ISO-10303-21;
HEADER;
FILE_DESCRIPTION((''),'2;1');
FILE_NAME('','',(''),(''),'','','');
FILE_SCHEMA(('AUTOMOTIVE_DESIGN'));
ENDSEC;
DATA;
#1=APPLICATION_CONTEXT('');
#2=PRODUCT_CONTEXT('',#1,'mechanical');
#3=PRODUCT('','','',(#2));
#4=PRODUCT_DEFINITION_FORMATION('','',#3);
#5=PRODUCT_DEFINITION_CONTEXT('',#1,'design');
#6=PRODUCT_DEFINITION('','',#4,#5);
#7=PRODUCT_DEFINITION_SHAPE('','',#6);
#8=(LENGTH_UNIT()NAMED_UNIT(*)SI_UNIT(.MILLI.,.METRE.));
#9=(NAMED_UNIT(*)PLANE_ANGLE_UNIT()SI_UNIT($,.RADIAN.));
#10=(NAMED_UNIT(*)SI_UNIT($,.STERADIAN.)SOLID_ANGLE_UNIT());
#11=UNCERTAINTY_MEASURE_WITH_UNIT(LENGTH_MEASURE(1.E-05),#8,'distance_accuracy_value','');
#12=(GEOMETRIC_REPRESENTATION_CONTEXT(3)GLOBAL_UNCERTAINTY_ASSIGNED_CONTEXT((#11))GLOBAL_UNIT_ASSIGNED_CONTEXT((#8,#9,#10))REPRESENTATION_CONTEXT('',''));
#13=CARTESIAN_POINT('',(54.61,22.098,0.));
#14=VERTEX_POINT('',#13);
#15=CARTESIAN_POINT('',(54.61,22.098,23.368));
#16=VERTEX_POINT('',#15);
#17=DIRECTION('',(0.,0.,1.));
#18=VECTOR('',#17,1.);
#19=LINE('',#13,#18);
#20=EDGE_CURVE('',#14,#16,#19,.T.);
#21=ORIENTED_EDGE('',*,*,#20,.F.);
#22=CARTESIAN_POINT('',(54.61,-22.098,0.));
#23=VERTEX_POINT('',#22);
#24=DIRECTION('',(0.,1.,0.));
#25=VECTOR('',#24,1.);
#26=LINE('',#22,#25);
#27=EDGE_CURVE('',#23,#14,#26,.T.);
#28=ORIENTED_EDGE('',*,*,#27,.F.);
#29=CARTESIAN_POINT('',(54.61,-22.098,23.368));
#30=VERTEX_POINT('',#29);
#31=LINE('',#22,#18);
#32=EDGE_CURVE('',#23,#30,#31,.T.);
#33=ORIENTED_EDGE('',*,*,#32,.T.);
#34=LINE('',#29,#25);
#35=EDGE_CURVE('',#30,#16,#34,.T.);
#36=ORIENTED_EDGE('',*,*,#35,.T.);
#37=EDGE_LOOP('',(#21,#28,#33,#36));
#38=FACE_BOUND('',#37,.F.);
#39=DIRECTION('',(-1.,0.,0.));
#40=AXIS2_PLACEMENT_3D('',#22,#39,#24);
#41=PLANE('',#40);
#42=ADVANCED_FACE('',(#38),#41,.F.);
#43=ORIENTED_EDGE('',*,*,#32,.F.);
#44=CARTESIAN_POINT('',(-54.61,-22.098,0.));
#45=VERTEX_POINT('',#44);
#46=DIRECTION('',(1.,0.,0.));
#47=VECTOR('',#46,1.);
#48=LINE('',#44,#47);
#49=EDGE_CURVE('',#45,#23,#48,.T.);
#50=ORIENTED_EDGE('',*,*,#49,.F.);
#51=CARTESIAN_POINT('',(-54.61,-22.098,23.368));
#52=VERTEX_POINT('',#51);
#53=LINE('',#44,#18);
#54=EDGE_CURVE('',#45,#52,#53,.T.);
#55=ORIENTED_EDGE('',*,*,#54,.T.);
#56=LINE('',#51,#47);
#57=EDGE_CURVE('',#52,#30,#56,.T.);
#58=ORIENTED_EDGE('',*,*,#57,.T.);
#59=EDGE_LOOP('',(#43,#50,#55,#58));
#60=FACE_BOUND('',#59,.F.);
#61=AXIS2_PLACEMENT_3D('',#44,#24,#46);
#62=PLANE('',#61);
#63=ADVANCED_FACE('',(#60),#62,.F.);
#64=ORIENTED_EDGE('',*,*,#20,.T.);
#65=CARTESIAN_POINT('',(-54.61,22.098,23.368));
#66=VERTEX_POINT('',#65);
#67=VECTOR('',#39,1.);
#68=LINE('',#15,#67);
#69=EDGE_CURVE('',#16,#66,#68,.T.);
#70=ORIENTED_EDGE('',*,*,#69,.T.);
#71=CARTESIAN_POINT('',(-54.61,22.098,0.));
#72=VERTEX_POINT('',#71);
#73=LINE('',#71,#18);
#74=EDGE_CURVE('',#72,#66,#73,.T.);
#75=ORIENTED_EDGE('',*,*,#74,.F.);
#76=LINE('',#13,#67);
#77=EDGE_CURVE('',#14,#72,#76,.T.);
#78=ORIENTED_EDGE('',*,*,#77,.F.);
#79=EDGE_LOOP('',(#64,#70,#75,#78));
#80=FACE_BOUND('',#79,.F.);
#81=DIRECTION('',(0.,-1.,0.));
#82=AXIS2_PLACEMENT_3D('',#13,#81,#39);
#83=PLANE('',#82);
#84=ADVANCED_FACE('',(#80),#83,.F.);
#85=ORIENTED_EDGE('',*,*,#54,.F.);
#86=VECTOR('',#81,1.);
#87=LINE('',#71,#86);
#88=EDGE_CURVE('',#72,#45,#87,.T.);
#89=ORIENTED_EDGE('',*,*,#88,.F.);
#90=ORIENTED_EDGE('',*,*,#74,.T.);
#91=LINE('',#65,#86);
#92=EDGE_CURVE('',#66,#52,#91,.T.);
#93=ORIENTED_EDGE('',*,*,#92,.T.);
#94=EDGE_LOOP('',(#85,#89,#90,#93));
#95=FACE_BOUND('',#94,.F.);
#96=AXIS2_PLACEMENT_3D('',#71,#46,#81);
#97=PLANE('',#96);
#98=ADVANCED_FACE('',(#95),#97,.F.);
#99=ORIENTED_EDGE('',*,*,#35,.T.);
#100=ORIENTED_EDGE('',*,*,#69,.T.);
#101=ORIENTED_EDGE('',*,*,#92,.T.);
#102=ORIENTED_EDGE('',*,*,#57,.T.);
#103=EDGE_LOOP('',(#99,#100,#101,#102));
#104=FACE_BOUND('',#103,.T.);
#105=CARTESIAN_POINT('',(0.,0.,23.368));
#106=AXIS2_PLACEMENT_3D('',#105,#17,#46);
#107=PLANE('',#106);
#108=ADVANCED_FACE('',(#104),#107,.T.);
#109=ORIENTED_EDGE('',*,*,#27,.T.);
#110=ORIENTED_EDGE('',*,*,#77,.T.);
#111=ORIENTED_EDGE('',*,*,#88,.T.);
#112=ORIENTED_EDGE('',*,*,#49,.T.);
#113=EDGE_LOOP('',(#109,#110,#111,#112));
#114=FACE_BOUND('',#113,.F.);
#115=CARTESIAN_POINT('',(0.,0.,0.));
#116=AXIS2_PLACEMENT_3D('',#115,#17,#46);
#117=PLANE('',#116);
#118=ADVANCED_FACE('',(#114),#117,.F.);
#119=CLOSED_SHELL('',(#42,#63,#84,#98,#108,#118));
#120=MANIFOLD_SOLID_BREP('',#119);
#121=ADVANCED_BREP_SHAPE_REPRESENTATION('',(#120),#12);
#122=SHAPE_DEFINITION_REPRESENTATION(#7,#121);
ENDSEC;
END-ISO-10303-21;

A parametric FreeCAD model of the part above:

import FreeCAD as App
import Part
import Sketcher
from FreeCAD import Vector
Q = App.Units.Quantity

doc = App.newDocument("Part")
body = doc.addObject("PartDesign::Body", "Body")

# Sketch on XY plane
sketch1 = body.newObject("Sketcher::SketchObject", "Sketch")
sketch1.AttachmentSupport = (doc.getObject("XY_Plane"), [""])
sketch1.MapMode = "FlatFace"
sketch1.addGeometry(Part.LineSegment(Vector(-55, 22, 0), Vector(-55, -22, 0)), False)
sketch1.addGeometry(Part.LineSegment(Vector(-55, -22, 0), Vector(55, -22, 0)), False)
sketch1.addGeometry(Part.LineSegment(Vector(55, -22, 0), Vector(55, 22, 0)), False)
sketch1.addGeometry(Part.LineSegment(Vector(55, 22, 0), Vector(-55, 22, 0)), False)
sketch1.addConstraint(Sketcher.Constraint("Coincident", 0, 2, 1, 1))
sketch1.addConstraint(Sketcher.Constraint("Coincident", 1, 2, 2, 1))
sketch1.addConstraint(Sketcher.Constraint("Coincident", 2, 2, 3, 1))
sketch1.addConstraint(Sketcher.Constraint("Coincident", 3, 2, 0, 1))
sketch1.addConstraint(Sketcher.Constraint("Vertical", 0))
sketch1.addConstraint(Sketcher.Constraint("Horizontal", 1))
sketch1.addConstraint(Sketcher.Constraint("Vertical", 2))
sketch1.addConstraint(Sketcher.Constraint("Horizontal", 3))
sketch1.addConstraint(Sketcher.Constraint("Symmetric", 0, 2, 2, 2, -1, 1))
sketch1.addConstraint(Sketcher.Constraint("DistanceX", 1, 1, 1, 2, Q("4.3 in")))
sketch1.addConstraint(Sketcher.Constraint("DistanceY", 0, 2, 0, 1, Q("1.74 in")))
pad1 = body.newObject("PartDesign::Pad", "Pad")
pad1.Profile = sketch1
pad1.Length = Q("0.92 in")

doc.recompute()
